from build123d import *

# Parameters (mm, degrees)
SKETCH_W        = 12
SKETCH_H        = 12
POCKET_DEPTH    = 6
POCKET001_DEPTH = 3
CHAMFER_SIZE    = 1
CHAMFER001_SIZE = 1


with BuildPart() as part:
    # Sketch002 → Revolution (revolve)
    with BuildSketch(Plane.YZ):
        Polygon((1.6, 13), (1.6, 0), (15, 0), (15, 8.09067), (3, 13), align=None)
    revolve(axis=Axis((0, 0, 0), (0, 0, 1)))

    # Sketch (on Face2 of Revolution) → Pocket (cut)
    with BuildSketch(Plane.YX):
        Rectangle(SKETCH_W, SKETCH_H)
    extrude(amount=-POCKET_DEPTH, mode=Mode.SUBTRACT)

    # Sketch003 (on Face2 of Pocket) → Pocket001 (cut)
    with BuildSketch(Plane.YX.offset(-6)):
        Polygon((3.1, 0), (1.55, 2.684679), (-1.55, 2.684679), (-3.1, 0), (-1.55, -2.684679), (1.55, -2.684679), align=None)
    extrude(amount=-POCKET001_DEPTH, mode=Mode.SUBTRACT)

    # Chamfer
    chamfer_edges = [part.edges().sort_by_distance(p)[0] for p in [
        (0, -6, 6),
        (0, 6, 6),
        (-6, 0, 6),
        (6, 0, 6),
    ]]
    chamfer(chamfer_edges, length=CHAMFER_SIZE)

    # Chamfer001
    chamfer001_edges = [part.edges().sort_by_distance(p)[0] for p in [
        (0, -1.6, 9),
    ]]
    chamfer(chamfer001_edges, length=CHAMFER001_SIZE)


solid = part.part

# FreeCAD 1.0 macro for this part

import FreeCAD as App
import Part
import Sketcher
from FreeCAD import Vector
Q = App.Units.Quantity


def edges_at(feature, points):
    """Names of the edges that pass closest to the given points."""
    edges = feature.Shape.Edges
    near = lambda p: min(range(len(edges)), key=lambda i: edges[i].distToShape(Part.Vertex(*p))[0])
    return sorted({f"Edge{near(p) + 1}" for p in points})

doc = App.newDocument("Part")
params = doc.addObject("Spreadsheet::Sheet", "Params")
for row, (alias, value) in enumerate([
    ("sketch1_height", "13 mm"),
    ("sketch1_width", "13.4 mm"),
    ("sketch1_width2", "1.4 mm"),
    ("revolution_angle", "360 deg"),
    ("sketch2_width", "12 mm"),
    ("pocket1_length", "6 mm"),
    ("sketch3_height", "3.1 mm"),
    ("sketch3_length", "3.1 mm"),
    ("pocket2_length", "3 mm"),
    ("chamfer_size", "1 mm"),
    ("chamfer2_size", "1 mm"),
], start=1):
    params.set(f"A{row}", alias)
    params.set(f"B{row}", "=" + value)
    params.setAlias(f"B{row}", alias)

body = doc.addObject("PartDesign::Body", "Body")

sketch1 = body.newObject("Sketcher::SketchObject", "Sketch")
sketch1.AttachmentSupport = (doc.getObject("YZ_Plane"), [""])
sketch1.MapMode = "FlatFace"
sketch1.addGeometry([
    Part.LineSegment(Vector(1.6, 13, 0), Vector(1.6, 0, 0)),
    Part.LineSegment(Vector(1.6, 0, 0), Vector(15, 0, 0)),
    Part.LineSegment(Vector(15, 0, 0), Vector(15, 8.1, 0)),
    Part.LineSegment(Vector(15, 8.1, 0), Vector(3, 13, 0)),
    Part.LineSegment(Vector(3, 13, 0), Vector(1.6, 13, 0)),
], False)
sketch1.addConstraint([
    Sketcher.Constraint("Coincident", 0, 2, 1, 1),
    Sketcher.Constraint("Coincident", 1, 2, 2, 1),
    Sketcher.Constraint("Coincident", 2, 2, 3, 1),
    Sketcher.Constraint("Coincident", 3, 2, 4, 1),
    Sketcher.Constraint("Coincident", 4, 2, 0, 1),
    Sketcher.Constraint("Vertical", 0),
    Sketcher.Constraint("Horizontal", 1),
    Sketcher.Constraint("Vertical", 2),
    Sketcher.Constraint("Horizontal", 4),
    Sketcher.Constraint("PointOnObject", 0, 2, -1),
    Sketcher.Constraint("DistanceY", 0, 2, 0, 1, 13.0),
    Sketcher.Constraint("DistanceX", 1, 1, 1, 2, 13.4),
    Sketcher.Constraint("DistanceX", 4, 2, 4, 1, 1.4),
    Sketcher.Constraint("DistanceX", -1, 1, 1, 2, 15.0),
    Sketcher.Constraint("Angle", 3, Q("157.749998 deg")),
])
sketch1.setExpression("Constraints[10]", "Params.sketch1_height")
sketch1.setExpression("Constraints[11]", "Params.sketch1_width")
sketch1.setExpression("Constraints[12]", "Params.sketch1_width2")
revolution = body.newObject("PartDesign::Revolution", "Revolution")
revolution.Profile = sketch1
revolution.ReferenceAxis = (sketch1, ["V_Axis"])
revolution.setExpression("Angle", "Params.revolution_angle")

sketch2 = body.newObject("Sketcher::SketchObject", "Sketch001")
sketch2.AttachmentSupport = (doc.getObject("XY_Plane"), [""])
sketch2.MapMode = "FlatFace"
sketch2.addGeometry([
    Part.LineSegment(Vector(6, -6, 0), Vector(-6, -6, 0)),
    Part.LineSegment(Vector(-6, -6, 0), Vector(-6, 6, 0)),
    Part.LineSegment(Vector(-6, 6, 0), Vector(6, 6, 0)),
    Part.LineSegment(Vector(6, 6, 0), Vector(6, -6, 0)),
], False)
sketch2.addConstraint([
    Sketcher.Constraint("Coincident", 0, 2, 1, 1),
    Sketcher.Constraint("Coincident", 1, 2, 2, 1),
    Sketcher.Constraint("Coincident", 2, 2, 3, 1),
    Sketcher.Constraint("Coincident", 3, 2, 0, 1),
    Sketcher.Constraint("Horizontal", 0),
    Sketcher.Constraint("Vertical", 1),
    Sketcher.Constraint("Horizontal", 2),
    Sketcher.Constraint("Vertical", 3),
    Sketcher.Constraint("Symmetric", 0, 2, 2, 2, -1, 1),
    Sketcher.Constraint("Equal", 2, 1),
    Sketcher.Constraint("DistanceX", 0, 2, 0, 1, 12.0),
])
sketch2.setExpression("Constraints[10]", "Params.sketch2_width")
pocket1 = body.newObject("PartDesign::Pocket", "Pocket")
pocket1.Profile = sketch2
pocket1.setExpression("Length", "Params.pocket1_length")
pocket1.Reversed = True

sketch3 = body.newObject("Sketcher::SketchObject", "Sketch002")
sketch3.AttachmentSupport = (doc.getObject("XY_Plane"), [""])
sketch3.MapMode = "FlatFace"
sketch3.AttachmentOffset = App.Placement(Vector(0, 0, 6), App.Rotation())
sketch3.addGeometry([
    Part.LineSegment(Vector(0, 3.1, 0), Vector(2.7, 1.6, 0)),
    Part.LineSegment(Vector(2.7, 1.6, 0), Vector(2.7, -1.6, 0)),
    Part.LineSegment(Vector(2.7, -1.6, 0), Vector(0, -3.1, 0)),
    Part.LineSegment(Vector(0, -3.1, 0), Vector(-2.7, -1.6, 0)),
    Part.LineSegment(Vector(-2.7, -1.6, 0), Vector(-2.7, 1.6, 0)),
    Part.LineSegment(Vector(-2.7, 1.6, 0), Vector(0, 3.1, 0)),
], False)
sketch3.addConstraint([
    Sketcher.Constraint("Coincident", 0, 2, 1, 1),
    Sketcher.Constraint("Coincident", 1, 2, 2, 1),
    Sketcher.Constraint("Coincident", 2, 2, 3, 1),
    Sketcher.Constraint("Coincident", 3, 2, 4, 1),
    Sketcher.Constraint("Coincident", 4, 2, 5, 1),
    Sketcher.Constraint("Coincident", 5, 2, 0, 1),
    Sketcher.Constraint("Vertical", 1),
    Sketcher.Constraint("Vertical", 4),
    Sketcher.Constraint("Symmetric", 0, 2, 3, 2, -1, 1),
    Sketcher.Constraint("Symmetric", 2, 2, 5, 2, -1, 1),
    Sketcher.Constraint("PointOnObject", 2, 2, -2),
    Sketcher.Constraint("Parallel", 2, 5),
    Sketcher.Constraint("Horizontal", 1, 2, 3, 2),
    Sketcher.Constraint("Angle", 0, Q("-29.999998 deg")),
    Sketcher.Constraint("DistanceY", 1, 2, 1, 1, 3.1),
    Sketcher.Constraint("Distance", 0, 3.1),
])
sketch3.setExpression("Constraints[14]", "Params.sketch3_height")
sketch3.setExpression("Constraints[15]", "Params.sketch3_length")
pocket2 = body.newObject("PartDesign::Pocket", "Pocket001")
pocket2.Profile = sketch3
pocket2.setExpression("Length", "Params.pocket2_length")
pocket2.Reversed = True
doc.recompute()

chamfer = body.newObject("PartDesign::Chamfer", "Chamfer")
chamfer.Base = (pocket2, edges_at(pocket2, [
    (0, -6, 6),
    (0, 6, 6),
    (-6, 0, 6),
    (6, 0, 6),
]))
chamfer.setExpression("Size", "Params.chamfer_size")
doc.recompute()

chamfer2 = body.newObject("PartDesign::Chamfer", "Chamfer001")
chamfer2.Base = (chamfer, edges_at(chamfer, [(0, -1.6, 9)]))
chamfer2.setExpression("Size", "Params.chamfer2_size")

doc.recompute()
